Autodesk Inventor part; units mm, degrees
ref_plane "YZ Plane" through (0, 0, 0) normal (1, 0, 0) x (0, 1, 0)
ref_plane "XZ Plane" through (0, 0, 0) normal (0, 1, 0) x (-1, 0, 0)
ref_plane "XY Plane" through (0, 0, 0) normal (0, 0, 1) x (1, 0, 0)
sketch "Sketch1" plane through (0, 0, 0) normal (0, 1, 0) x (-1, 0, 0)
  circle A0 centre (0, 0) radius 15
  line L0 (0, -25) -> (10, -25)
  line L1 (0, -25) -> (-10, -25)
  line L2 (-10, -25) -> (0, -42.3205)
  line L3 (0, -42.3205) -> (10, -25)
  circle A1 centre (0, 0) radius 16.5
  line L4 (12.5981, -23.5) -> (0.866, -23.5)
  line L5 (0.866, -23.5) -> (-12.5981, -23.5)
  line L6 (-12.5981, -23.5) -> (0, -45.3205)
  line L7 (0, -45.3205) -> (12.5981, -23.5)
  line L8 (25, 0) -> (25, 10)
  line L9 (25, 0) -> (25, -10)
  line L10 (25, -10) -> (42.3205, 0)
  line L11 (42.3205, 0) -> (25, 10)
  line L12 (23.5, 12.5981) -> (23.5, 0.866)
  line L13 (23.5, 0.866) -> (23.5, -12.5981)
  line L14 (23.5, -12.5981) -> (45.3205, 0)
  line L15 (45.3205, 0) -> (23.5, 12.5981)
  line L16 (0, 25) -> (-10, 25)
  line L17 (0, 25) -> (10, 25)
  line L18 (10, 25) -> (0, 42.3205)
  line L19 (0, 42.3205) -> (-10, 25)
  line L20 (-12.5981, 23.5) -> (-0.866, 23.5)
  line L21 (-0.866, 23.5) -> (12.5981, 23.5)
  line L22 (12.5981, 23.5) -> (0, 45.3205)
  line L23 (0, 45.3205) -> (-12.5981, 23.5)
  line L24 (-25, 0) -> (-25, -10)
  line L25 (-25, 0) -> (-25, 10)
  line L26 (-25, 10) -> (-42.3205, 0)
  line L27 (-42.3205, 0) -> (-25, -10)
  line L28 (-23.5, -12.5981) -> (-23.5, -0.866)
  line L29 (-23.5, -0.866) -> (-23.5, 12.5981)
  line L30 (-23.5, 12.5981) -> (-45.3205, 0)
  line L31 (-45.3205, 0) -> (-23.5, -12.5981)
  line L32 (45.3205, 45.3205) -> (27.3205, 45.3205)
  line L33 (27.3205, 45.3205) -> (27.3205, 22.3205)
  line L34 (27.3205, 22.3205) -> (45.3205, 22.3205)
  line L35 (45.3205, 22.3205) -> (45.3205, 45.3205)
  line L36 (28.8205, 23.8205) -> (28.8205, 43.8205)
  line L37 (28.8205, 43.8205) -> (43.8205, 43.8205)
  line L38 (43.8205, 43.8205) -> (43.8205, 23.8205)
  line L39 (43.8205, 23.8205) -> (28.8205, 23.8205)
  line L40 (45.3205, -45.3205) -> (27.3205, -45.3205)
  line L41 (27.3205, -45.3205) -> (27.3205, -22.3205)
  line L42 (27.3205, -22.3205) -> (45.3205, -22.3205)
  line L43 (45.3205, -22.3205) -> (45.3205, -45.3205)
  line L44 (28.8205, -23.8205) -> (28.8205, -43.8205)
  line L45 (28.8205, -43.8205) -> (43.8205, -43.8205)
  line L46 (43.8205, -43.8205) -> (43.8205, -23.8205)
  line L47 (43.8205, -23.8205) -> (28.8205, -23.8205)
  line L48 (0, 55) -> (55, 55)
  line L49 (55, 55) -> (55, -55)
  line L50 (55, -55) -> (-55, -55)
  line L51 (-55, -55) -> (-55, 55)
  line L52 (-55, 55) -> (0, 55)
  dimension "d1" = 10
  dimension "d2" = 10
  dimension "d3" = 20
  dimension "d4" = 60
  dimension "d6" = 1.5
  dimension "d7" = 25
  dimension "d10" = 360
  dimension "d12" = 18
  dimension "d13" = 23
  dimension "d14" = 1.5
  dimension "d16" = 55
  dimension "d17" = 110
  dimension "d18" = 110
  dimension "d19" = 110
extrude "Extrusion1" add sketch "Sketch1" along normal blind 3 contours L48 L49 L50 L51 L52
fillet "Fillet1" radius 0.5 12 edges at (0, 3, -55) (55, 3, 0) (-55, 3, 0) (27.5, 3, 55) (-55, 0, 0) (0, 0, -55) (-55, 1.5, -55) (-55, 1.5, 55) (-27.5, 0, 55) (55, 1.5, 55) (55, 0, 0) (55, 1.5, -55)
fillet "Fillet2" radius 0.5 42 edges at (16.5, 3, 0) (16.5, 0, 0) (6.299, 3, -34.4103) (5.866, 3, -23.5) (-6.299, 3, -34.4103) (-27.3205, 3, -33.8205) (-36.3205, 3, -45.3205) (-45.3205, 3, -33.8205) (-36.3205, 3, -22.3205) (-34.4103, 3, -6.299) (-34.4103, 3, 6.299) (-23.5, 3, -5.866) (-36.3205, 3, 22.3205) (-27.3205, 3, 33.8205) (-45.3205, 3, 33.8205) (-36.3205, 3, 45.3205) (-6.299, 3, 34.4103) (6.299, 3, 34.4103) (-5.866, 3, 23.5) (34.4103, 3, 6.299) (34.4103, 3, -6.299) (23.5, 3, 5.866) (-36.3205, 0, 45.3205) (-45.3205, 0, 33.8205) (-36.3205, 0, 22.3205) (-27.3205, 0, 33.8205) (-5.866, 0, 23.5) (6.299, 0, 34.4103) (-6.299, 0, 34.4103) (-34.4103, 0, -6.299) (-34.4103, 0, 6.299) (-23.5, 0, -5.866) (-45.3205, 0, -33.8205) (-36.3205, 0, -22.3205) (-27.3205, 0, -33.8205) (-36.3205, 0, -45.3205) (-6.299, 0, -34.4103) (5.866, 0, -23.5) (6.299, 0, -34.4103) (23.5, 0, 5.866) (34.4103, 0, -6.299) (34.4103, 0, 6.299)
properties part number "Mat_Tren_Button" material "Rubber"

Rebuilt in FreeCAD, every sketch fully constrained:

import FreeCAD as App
import Part
import Sketcher

V = App.Vector
Q = App.Units.Quantity


def edges_at(feature, points):
    """Names of the edges that pass closest to the given points."""
    edges = feature.Shape.Edges
    near = lambda p: min(range(len(edges)), key=lambda i: edges[i].distToShape(Part.Vertex(*p))[0])
    return sorted({f"Edge{near(p) + 1}" for p in points})

doc = App.newDocument("Part")
body = doc.addObject("PartDesign::Body", "Body")

# Sketch on XZ plane
sketch1 = body.newObject("Sketcher::SketchObject", "Sketch")
sketch1.AttachmentSupport = (doc.getObject("XZ_Plane"), [""])
sketch1.MapMode = "FlatFace"
sketch1.addGeometry(Part.LineSegment(V(-55, 55, 0), V(55, 55, 0)), False)
sketch1.addGeometry(Part.LineSegment(V(55, 55, 0), V(55, -55, 0)), False)
sketch1.addGeometry(Part.LineSegment(V(55, -55, 0), V(-55, -55, 0)), False)
sketch1.addGeometry(Part.LineSegment(V(-55, -55, 0), V(-55, 55, 0)), False)
sketch1.addGeometry(Part.LineSegment(V(12.5981, -23.5, 0), V(-12.5981, -23.5, 0)), False)
sketch1.addGeometry(Part.LineSegment(V(-12.5981, -23.5, 0), V(0, -45.3205, 0)), False)
sketch1.addGeometry(Part.LineSegment(V(0, -45.3205, 0), V(12.5981, -23.5, 0)), False)
sketch1.addGeometry(Part.LineSegment(V(-45.3205, -22.3205, 0), V(-45.3205, -45.3205, 0)), False)
sketch1.addGeometry(Part.LineSegment(V(-45.3205, -45.3205, 0), V(-27.3205, -45.3205, 0)), False)
sketch1.addGeometry(Part.LineSegment(V(-27.3205, -45.3205, 0), V(-27.3205, -22.3205, 0)), False)
sketch1.addGeometry(Part.LineSegment(V(-27.3205, -22.3205, 0), V(-45.3205, -22.3205, 0)), False)
sketch1.addGeometry(Part.LineSegment(V(23.5, 12.5981, 0), V(23.5, -12.5981, 0)), False)
sketch1.addGeometry(Part.LineSegment(V(23.5, -12.5981, 0), V(45.3205, 0, 0)), False)
sketch1.addGeometry(Part.LineSegment(V(45.3205, 0, 0), V(23.5, 12.5981, 0)), False)
sketch1.addGeometry(Part.Circle(V(0, 0, 0), V(0, 0, 1), 16.5), False)
sketch1.addGeometry(Part.LineSegment(V(-23.5, -12.5981, 0), V(-23.5, 12.5981, 0)), False)
sketch1.addGeometry(Part.LineSegment(V(-23.5, 12.5981, 0), V(-45.3205, 0, 0)), False)
sketch1.addGeometry(Part.LineSegment(V(-45.3205, 0, 0), V(-23.5, -12.5981, 0)), False)
sketch1.addGeometry(Part.LineSegment(V(-12.5981, 23.5, 0), V(12.5981, 23.5, 0)), False)
sketch1.addGeometry(Part.LineSegment(V(12.5981, 23.5, 0), V(0, 45.3205, 0)), False)
sketch1.addGeometry(Part.LineSegment(V(0, 45.3205, 0), V(-12.5981, 23.5, 0)), False)
sketch1.addGeometry(Part.LineSegment(V(-27.3205, 45.3205, 0), V(-45.3205, 45.3205, 0)), False)
sketch1.addGeometry(Part.LineSegment(V(-45.3205, 45.3205, 0), V(-45.3205, 22.3205, 0)), False)
sketch1.addGeometry(Part.LineSegment(V(-45.3205, 22.3205, 0), V(-27.3205, 22.3205, 0)), False)
sketch1.addGeometry(Part.LineSegment(V(-27.3205, 22.3205, 0), V(-27.3205, 45.3205, 0)), False)
sketch1.addConstraint(Sketcher.Constraint("Coincident", 0, 2, 1, 1))
sketch1.addConstraint(Sketcher.Constraint("Coincident", 1, 2, 2, 1))
sketch1.addConstraint(Sketcher.Constraint("Coincident", 2, 2, 3, 1))
sketch1.addConstraint(Sketcher.Constraint("Coincident", 3, 2, 0, 1))
sketch1.addConstraint(Sketcher.Constraint("Coincident", 4, 2, 5, 1))
sketch1.addConstraint(Sketcher.Constraint("Coincident", 5, 2, 6, 1))
sketch1.addConstraint(Sketcher.Constraint("Coincident", 6, 2, 4, 1))
sketch1.addConstraint(Sketcher.Constraint("Coincident", 7, 2, 8, 1))
sketch1.addConstraint(Sketcher.Constraint("Coincident", 8, 2, 9, 1))
sketch1.addConstraint(Sketcher.Constraint("Coincident", 9, 2, 10, 1))
sketch1.addConstraint(Sketcher.Constraint("Coincident", 10, 2, 7, 1))
sketch1.addConstraint(Sketcher.Constraint("Coincident", 11, 2, 12, 1))
sketch1.addConstraint(Sketcher.Constraint("Coincident", 12, 2, 13, 1))
sketch1.addConstraint(Sketcher.Constraint("Coincident", 13, 2, 11, 1))
sketch1.addConstraint(Sketcher.Constraint("Coincident", 15, 2, 16, 1))
sketch1.addConstraint(Sketcher.Constraint("Coincident", 16, 2, 17, 1))
sketch1.addConstraint(Sketcher.Constraint("Coincident", 17, 2, 15, 1))
sketch1.addConstraint(Sketcher.Constraint("Coincident", 18, 2, 19, 1))
sketch1.addConstraint(Sketcher.Constraint("Coincident", 19, 2, 20, 1))
sketch1.addConstraint(Sketcher.Constraint("Coincident", 20, 2, 18, 1))
sketch1.addConstraint(Sketcher.Constraint("Coincident", 21, 2, 22, 1))
sketch1.addConstraint(Sketcher.Constraint("Coincident", 22, 2, 23, 1))
sketch1.addConstraint(Sketcher.Constraint("Coincident", 23, 2, 24, 1))
sketch1.addConstraint(Sketcher.Constraint("Coincident", 24, 2, 21, 1))
sketch1.addConstraint(Sketcher.Constraint("Horizontal", 0))
sketch1.addConstraint(Sketcher.Constraint("Vertical", 1))
sketch1.addConstraint(Sketcher.Constraint("Horizontal", 2))
sketch1.addConstraint(Sketcher.Constraint("Vertical", 3))
sketch1.addConstraint(Sketcher.Constraint("Horizontal", 4))
sketch1.addConstraint(Sketcher.Constraint("Vertical", 7))
sketch1.addConstraint(Sketcher.Constraint("Horizontal", 8))
sketch1.addConstraint(Sketcher.Constraint("Vertical", 9))
sketch1.addConstraint(Sketcher.Constraint("Horizontal", 10))
sketch1.addConstraint(Sketcher.Constraint("Vertical", 11))
sketch1.addConstraint(Sketcher.Constraint("Vertical", 15))
sketch1.addConstraint(Sketcher.Constraint("Horizontal", 18))
sketch1.addConstraint(Sketcher.Constraint("Horizontal", 21))
sketch1.addConstraint(Sketcher.Constraint("Vertical", 22))
sketch1.addConstraint(Sketcher.Constraint("Horizontal", 23))
sketch1.addConstraint(Sketcher.Constraint("Vertical", 24))
sketch1.addConstraint(Sketcher.Constraint("Coincident", 14, 3, -1, 1))
sketch1.addConstraint(Sketcher.Constraint("Symmetric", 0, 2, 2, 2, -1, 1))
sketch1.addConstraint(Sketcher.Constraint("Symmetric", 11, 2, 15, 2, -1, 1))
sketch1.addConstraint(Sketcher.Constraint("Symmetric", 12, 2, 16, 2, -1, 1))
sketch1.addConstraint(Sketcher.Constraint("Symmetric", 4, 2, 18, 2, -1, 1))
sketch1.addConstraint(Sketcher.Constraint("Symmetric", 5, 2, 19, 2, -1, 1))
sketch1.addConstraint(Sketcher.Constraint("Symmetric", 7, 2, 21, 2, -1))
sketch1.addConstraint(Sketcher.Constraint("Symmetric", 9, 2, 23, 2, -1))
sketch1.addConstraint(Sketcher.Constraint("PointOnObject", 5, 2, -2))
sketch1.addConstraint(Sketcher.Constraint("PointOnObject", 12, 2, -1))
sketch1.addConstraint(Sketcher.Constraint("Perpendicular", 5, 12))
sketch1.addConstraint(Sketcher.Constraint("Perpendicular", 6, 13))
sketch1.addConstraint(Sketcher.Constraint("Parallel", 13, 17))
sketch1.addConstraint(Sketcher.Constraint("Perpendicular", 17, 20))
sketch1.addConstraint(Sketcher.Constraint("Horizontal", 5, 2, 7, 2))
sketch1.addConstraint(Sketcher.Constraint("Horizontal", 13, 2, 15, 2))
sketch1.addConstraint(Sketcher.Constraint("Vertical", 10, 2, 16, 2))
sketch1.addConstraint(Sketcher.Constraint("Equal", 2, 1))
sketch1.addConstraint(Sketcher.Constraint("Equal", 18, 11))
sketch1.addConstraint(Sketcher.Constraint("DistanceX", 0, 1, 0, 2, 110.0))
sketch1.addConstraint(Sketcher.Constraint("DistanceX", 8, 1, 8, 2, 18.0))
sketch1.addConstraint(Sketcher.Constraint("DistanceY", 7, 2, 7, 1, 23.0))
sketch1.addConstraint(Sketcher.Constraint("Angle", 5, Q("-60 deg")))
sketch1.addConstraint(Sketcher.Constraint("Diameter", 14, 33.0))
sketch1.addConstraint(Sketcher.Constraint("DistanceX", 15, 2, 13, 2, 47.0))
sketch1.addConstraint(Sketcher.Constraint("DistanceY", 4, 2, -1, 1, 23.5))
sketch1.addConstraint(Sketcher.Constraint("DistanceX", 4, 2, 4, 1, 25.1962))
pad1 = body.newObject("PartDesign::Pad", "Pad")
pad1.Profile = sketch1
pad1.Length = 3
pad1.Reversed = True
doc.recompute()

fillet = body.newObject("PartDesign::Fillet", "Fillet")
fillet.Base = (pad1, edges_at(pad1, [
    (0, 3, -55),
    (55, 3, 0),
    (-55, 3, 0),
    (27.5, 3, 55),
    (-55, 0, 0),
    (0, 0, -55),
    (-55, 1.5, -55),
    (-55, 1.5, 55),
    (-27.5, 0, 55),
    (55, 1.5, 55),
    (55, 0, 0),
    (55, 1.5, -55),
]))
fillet.Radius = 0.5
doc.recompute()

fillet2 = body.newObject("PartDesign::Fillet", "Fillet001")
fillet2.Base = (fillet, edges_at(fillet, [
    (16.5, 3, 0),
    (16.5, 0, 0),
    (6.299, 3, -34.41),
    (5.866, 3, -23.5),
    (-6.299, 3, -34.41),
    (-27.32, 3, -33.821),
    (-36.321, 3, -45.321),
    (-45.321, 3, -33.821),
    (-36.321, 3, -22.32),
    (-34.41, 3, -6.299),
    (-34.41, 3, 6.299),
    (-23.5, 3, -5.866),
    (-36.321, 3, 22.32),
    (-27.32, 3, 33.821),
    (-45.321, 3, 33.821),
    (-36.321, 3, 45.321),
    (-6.299, 3, 34.41),
    (6.299, 3, 34.41),
    (-5.866, 3, 23.5),
    (34.41, 3, 6.299),
    (34.41, 3, -6.299),
    (23.5, 3, 5.866),
    (-36.321, 0, 45.321),
    (-45.321, 0, 33.821),
    (-36.321, 0, 22.32),
    (-27.32, 0, 33.821),
    (-5.866, 0, 23.5),
    (6.299, 0, 34.41),
    (-6.299, 0, 34.41),
    (-34.41, 0, -6.299),
    (-34.41, 0, 6.299),
    (-23.5, 0, -5.866),
    (-45.321, 0, -33.821),
    (-36.321, 0, -22.32),
    (-27.32, 0, -33.821),
    (-36.321, 0, -45.321),
    (-6.299, 0, -34.41),
    (5.866, 0, -23.5),
    (6.299, 0, -34.41),
    (23.5, 0, 5.866),
    (34.41, 0, -6.299),
    (34.41, 0, 6.299),
]))
fillet2.Radius = 0.5

doc.recompute()
